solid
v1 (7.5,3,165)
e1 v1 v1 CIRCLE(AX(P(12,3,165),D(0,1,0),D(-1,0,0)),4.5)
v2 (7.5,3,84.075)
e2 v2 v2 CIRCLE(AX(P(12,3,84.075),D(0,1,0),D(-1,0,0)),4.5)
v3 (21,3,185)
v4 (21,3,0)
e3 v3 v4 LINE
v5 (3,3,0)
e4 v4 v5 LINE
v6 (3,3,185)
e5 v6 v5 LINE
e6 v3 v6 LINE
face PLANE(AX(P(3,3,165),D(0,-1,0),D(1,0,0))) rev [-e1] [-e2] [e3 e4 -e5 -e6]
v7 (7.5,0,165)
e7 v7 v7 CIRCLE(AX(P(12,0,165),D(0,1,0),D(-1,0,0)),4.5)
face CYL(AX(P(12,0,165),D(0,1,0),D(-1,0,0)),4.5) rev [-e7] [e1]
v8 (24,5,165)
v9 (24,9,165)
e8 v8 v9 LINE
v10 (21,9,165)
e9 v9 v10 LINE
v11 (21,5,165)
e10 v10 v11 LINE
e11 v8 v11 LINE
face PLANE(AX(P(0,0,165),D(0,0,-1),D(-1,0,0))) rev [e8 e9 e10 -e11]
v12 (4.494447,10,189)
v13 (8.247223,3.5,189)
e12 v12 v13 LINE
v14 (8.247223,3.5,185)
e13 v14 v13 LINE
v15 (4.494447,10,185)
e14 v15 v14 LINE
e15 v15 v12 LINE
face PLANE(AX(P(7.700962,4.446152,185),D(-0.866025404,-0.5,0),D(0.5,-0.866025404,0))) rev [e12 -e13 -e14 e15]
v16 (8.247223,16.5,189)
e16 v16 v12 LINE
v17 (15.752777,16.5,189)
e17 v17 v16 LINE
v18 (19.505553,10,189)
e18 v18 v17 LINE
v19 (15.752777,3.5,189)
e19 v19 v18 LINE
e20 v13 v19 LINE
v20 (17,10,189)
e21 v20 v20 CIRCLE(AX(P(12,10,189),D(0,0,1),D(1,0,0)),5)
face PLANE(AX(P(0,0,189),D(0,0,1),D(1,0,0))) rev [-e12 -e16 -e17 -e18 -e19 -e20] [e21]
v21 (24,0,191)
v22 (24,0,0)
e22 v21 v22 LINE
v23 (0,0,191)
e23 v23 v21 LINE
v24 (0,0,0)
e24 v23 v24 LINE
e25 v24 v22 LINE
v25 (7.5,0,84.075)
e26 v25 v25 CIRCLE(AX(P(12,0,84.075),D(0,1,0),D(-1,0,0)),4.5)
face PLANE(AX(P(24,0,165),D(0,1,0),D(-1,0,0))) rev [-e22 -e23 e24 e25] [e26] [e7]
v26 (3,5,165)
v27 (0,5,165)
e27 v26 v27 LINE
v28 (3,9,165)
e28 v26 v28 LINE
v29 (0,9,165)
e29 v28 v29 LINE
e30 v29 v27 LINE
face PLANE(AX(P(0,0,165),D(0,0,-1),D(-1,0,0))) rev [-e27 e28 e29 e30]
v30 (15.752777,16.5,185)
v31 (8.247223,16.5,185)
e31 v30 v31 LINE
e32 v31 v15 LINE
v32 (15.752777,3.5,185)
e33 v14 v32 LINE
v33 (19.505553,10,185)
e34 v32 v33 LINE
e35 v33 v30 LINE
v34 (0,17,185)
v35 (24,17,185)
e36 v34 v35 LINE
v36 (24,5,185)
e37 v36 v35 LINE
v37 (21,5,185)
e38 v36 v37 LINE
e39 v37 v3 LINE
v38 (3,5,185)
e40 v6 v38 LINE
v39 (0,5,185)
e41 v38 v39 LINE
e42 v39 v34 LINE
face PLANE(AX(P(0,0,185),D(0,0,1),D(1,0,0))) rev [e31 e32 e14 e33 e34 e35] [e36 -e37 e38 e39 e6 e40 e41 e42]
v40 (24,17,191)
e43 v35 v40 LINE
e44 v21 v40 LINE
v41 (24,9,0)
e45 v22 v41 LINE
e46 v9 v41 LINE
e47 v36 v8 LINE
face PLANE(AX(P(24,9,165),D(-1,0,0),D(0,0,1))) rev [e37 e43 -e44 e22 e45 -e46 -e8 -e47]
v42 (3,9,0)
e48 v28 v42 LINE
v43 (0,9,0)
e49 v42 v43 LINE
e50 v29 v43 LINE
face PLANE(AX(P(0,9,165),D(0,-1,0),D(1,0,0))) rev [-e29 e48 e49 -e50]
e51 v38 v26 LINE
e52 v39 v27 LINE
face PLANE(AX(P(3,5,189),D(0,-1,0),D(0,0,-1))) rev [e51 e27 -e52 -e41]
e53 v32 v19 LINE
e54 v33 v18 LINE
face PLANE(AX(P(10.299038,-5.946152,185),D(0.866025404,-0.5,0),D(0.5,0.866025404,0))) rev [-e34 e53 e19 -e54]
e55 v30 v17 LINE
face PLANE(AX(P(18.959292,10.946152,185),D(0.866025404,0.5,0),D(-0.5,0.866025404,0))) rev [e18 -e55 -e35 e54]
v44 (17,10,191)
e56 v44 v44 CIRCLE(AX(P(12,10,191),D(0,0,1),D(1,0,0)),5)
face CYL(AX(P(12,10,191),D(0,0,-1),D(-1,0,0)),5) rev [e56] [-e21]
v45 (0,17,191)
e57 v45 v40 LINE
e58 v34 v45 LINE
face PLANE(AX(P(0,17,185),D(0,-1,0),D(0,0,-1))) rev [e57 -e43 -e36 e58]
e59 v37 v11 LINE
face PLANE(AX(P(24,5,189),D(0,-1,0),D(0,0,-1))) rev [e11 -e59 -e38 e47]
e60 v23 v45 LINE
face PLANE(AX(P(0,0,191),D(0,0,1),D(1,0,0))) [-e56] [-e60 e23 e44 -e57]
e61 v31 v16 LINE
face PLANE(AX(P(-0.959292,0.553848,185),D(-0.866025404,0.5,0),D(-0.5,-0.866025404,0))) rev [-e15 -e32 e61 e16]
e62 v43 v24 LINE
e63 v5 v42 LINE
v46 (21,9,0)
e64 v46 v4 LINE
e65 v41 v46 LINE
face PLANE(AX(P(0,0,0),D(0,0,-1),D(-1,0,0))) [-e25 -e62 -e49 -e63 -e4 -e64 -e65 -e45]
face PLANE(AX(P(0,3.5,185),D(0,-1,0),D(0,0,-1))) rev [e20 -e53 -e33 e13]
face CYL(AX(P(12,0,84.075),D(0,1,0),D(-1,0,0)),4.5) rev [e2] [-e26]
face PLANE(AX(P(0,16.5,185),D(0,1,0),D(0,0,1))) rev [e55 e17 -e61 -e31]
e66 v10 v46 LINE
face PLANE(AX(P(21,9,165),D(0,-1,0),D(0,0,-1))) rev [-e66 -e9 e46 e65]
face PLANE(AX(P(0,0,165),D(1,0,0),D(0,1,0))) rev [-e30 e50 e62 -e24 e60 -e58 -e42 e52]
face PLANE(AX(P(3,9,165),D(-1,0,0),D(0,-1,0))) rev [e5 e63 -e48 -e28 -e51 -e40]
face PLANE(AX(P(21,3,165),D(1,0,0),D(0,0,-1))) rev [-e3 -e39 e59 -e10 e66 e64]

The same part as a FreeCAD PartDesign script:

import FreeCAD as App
import Part
import Sketcher

V = App.Vector
Q = App.Units.Quantity


def add_polygon(sketch, points):
    """Adds a closed chain of lines whose ends are joined by coincident constraints."""
    first, n = sketch.GeometryCount, len(points)
    for a, b in zip(points, points[1:] + points[:1]):
        sketch.addGeometry(Part.LineSegment(App.Vector(*a, 0), App.Vector(*b, 0)), False)
    for i in range(n):
        sketch.addConstraint(Sketcher.Constraint("Coincident", first + i, 2, first + (i + 1) % n, 1))

doc = App.newDocument("Part")
body = doc.addObject("PartDesign::Body", "Body")

# Sketch on XY plane
sketch1 = body.newObject("Sketcher::SketchObject", "Sketch")
sketch1.AttachmentSupport = (doc.getObject("XY_Plane"), [""])
sketch1.MapMode = "FlatFace"
add_polygon(sketch1, [(0, 9), (0, 0), (24, 0), (24, 9), (21, 9), (21, 3), (3, 3), (3, 9)])  # lines 0-7
sketch1.addConstraint([
    Sketcher.Constraint("Vertical", 0),
    Sketcher.Constraint("Horizontal", 1),
    Sketcher.Constraint("Vertical", 2),
    Sketcher.Constraint("Horizontal", 3),
    Sketcher.Constraint("Vertical", 4),
    Sketcher.Constraint("Horizontal", 5),
    Sketcher.Constraint("Vertical", 6),
    Sketcher.Constraint("Horizontal", 7),
    Sketcher.Constraint("Coincident", 0, 2, -1, 1),
    Sketcher.Constraint("Horizontal", 3, 2, 6, 2),
    Sketcher.Constraint("Equal", 3, 7),
    Sketcher.Constraint("DistanceX", 1, 1, 1, 2, Q("24 mm")),
    Sketcher.Constraint("DistanceX", 3, 2, 3, 1, Q("3 mm")),
    Sketcher.Constraint("DistanceY", 0, 2, 0, 1, Q("9 mm")),
    Sketcher.Constraint("DistanceY", 4, 2, 4, 1, Q("6 mm")),
])
pad1 = body.newObject("PartDesign::Pad", "Pad")
pad1.Profile = sketch1
pad1.Length = 165

# Sketch on XY plane
sketch2 = body.newObject("Sketcher::SketchObject", "Sketch001")
sketch2.AttachmentSupport = (doc.getObject("XY_Plane"), [""])
sketch2.MapMode = "FlatFace"
sketch2.AttachmentOffset = App.Placement(V(0, 0, 165), App.Rotation())
add_polygon(sketch2, [(0, 0), (24, 0), (24, 5), (21, 5), (21, 3), (3, 3), (3, 5), (0, 5)])  # lines 0-7
sketch2.addConstraint([
    Sketcher.Constraint("Horizontal", 0),
    Sketcher.Constraint("Vertical", 1),
    Sketcher.Constraint("Horizontal", 2),
    Sketcher.Constraint("Vertical", 3),
    Sketcher.Constraint("Horizontal", 4),
    Sketcher.Constraint("Vertical", 5),
    Sketcher.Constraint("Horizontal", 6),
    Sketcher.Constraint("Vertical", 7),
    Sketcher.Constraint("Coincident", 7, 2, -1, 1),
    Sketcher.Constraint("Horizontal", 2, 2, 5, 2),
    Sketcher.Constraint("Equal", 2, 6),
    Sketcher.Constraint("DistanceX", 0, 1, 0, 2, Q("24 mm")),
    Sketcher.Constraint("DistanceX", 2, 2, 2, 1, Q("3 mm")),
    Sketcher.Constraint("DistanceY", 1, 1, 1, 2, Q("5 mm")),
    Sketcher.Constraint("DistanceY", 3, 2, 3, 1, Q("2 mm")),
])
pad2 = body.newObject("PartDesign::Pad", "Pad001")
pad2.Profile = sketch2
pad2.Length = 24

# Sketch on XY plane
sketch3 = body.newObject("Sketcher::SketchObject", "Sketch002")
sketch3.AttachmentSupport = (doc.getObject("XY_Plane"), [""])
sketch3.MapMode = "FlatFace"
sketch3.AttachmentOffset = App.Placement(V(0, 0, 189), App.Rotation())
add_polygon(sketch3, [(0, 17), (0, 5), (3, 5), (3, 3), (21, 3), (21, 5), (24, 5), (24, 17)])  # lines 0-7
add_polygon(sketch3, [(4.5, 10), (8.2, 16.5), (15.8, 16.5), (19.5, 10), (15.8, 3.5), (8.2, 3.5)])  # lines 8-13
sketch3.addConstraint([
    Sketcher.Constraint("Vertical", 0),
    Sketcher.Constraint("Horizontal", 1),
    Sketcher.Constraint("Vertical", 2),
    Sketcher.Constraint("Horizontal", 3),
    Sketcher.Constraint("Vertical", 4),
    Sketcher.Constraint("Horizontal", 5),
    Sketcher.Constraint("Vertical", 6),
    Sketcher.Constraint("Horizontal", 7),
    Sketcher.Constraint("Horizontal", 9),
    Sketcher.Constraint("Horizontal", 12),
    Sketcher.Constraint("PointOnObject", 0, 2, -2),
    Sketcher.Constraint("Parallel", 8, 11),
    Sketcher.Constraint("Parallel", 10, 13),
    Sketcher.Constraint("Horizontal", 1, 2, 4, 2),
    Sketcher.Constraint("Horizontal", 10, 2, 13, 2),
    Sketcher.Constraint("Vertical", 9, 2, 11, 2),
    Sketcher.Constraint("Vertical", 8, 2, 12, 2),
    Sketcher.Constraint("Equal", 1, 5),
    Sketcher.Constraint("DistanceX", 1, 1, 1, 2, Q("3 mm")),
    Sketcher.Constraint("DistanceX", 3, 1, 3, 2, Q("18 mm")),
    Sketcher.Constraint("DistanceY", 0, 2, 0, 1, Q("12 mm")),
    Sketcher.Constraint("DistanceY", 2, 2, 2, 1, Q("2 mm")),
    Sketcher.Constraint("Angle", 8, Q("60 deg")),
    Sketcher.Constraint("DistanceY", -1, 1, 0, 2, Q("5 mm")),
    Sketcher.Constraint("DistanceY", -1, 1, 10, 2, Q("10 mm")),
    Sketcher.Constraint("DistanceY", -1, 1, 8, 2, Q("16.5 mm")),
    Sketcher.Constraint("DistanceX", 9, 1, 9, 2, Q("7.505554 mm")),
    Sketcher.Constraint("DistanceX", -1, 1, 8, 2, Q("8.247223 mm")),
])
pad3 = body.newObject("PartDesign::Pad", "Pad002")
pad3.Profile = sketch3
pad3.Length = 4
pad3.Reversed = True

# Sketch on XY plane
sketch4 = body.newObject("Sketcher::SketchObject", "Sketch003")
sketch4.AttachmentSupport = (doc.getObject("XY_Plane"), [""])
sketch4.MapMode = "FlatFace"
sketch4.AttachmentOffset = App.Placement(V(0, 0, 189), App.Rotation())
add_polygon(sketch4, [(0, 17), (0, 0), (24, 0), (24, 17)])  # lines 0-3
sketch4.addGeometry(Part.Circle(V(12, 10, 0), V(0, 0, 1), 5), False)  # 4
sketch4.addConstraint([
    Sketcher.Constraint("Vertical", 0),
    Sketcher.Constraint("Horizontal", 1),
    Sketcher.Constraint("Vertical", 2),
    Sketcher.Constraint("Horizontal", 3),
    Sketcher.Constraint("Coincident", 0, 2, -1, 1),
    Sketcher.Constraint("Diameter", 4, Q("10 mm")),
    Sketcher.Constraint("DistanceX", 1, 1, 1, 2, Q("24 mm")),
    Sketcher.Constraint("DistanceY", 0, 2, 0, 1, Q("17 mm")),
    Sketcher.Constraint("DistanceX", -1, 1, 4, 3, Q("12 mm")),
    Sketcher.Constraint("DistanceY", -1, 1, 4, 3, Q("10 mm")),
])
pad4 = body.newObject("PartDesign::Pad", "Pad003")
pad4.Profile = sketch4
pad4.Length = 2

# Sketch on XZ plane
sketch5 = body.newObject("Sketcher::SketchObject", "Sketch004")
sketch5.AttachmentSupport = (doc.getObject("XZ_Plane"), [""])
sketch5.MapMode = "FlatFace"
sketch5.AttachmentOffset = App.Placement(V(0, 0, -3), App.Rotation())
sketch5.addGeometry([
    Part.Circle(V(12, 165, 0), V(0, 0, 1), 4.5),
    Part.Circle(V(12, 84.1, 0), V(0, 0, 1), 4.5),
], False)
sketch5.addConstraint([
    Sketcher.Constraint("Equal", 0, 1),
    Sketcher.Constraint("Vertical", 0, 3, 1, 3),
    Sketcher.Constraint("Diameter", 0, Q("9 mm")),
    Sketcher.Constraint("DistanceX", -1, 1, 0, 3, Q("12 mm")),
    Sketcher.Constraint("DistanceY", -1, 1, 0, 3, Q("165 mm")),
    Sketcher.Constraint("DistanceY", -1, 1, 1, 3, Q("84.075 mm")),
])
pocket1 = body.newObject("PartDesign::Pocket", "Pocket")
pocket1.Profile = sketch5
pocket1.Type = "ThroughAll"
pocket1.Reversed = True

doc.recompute()
